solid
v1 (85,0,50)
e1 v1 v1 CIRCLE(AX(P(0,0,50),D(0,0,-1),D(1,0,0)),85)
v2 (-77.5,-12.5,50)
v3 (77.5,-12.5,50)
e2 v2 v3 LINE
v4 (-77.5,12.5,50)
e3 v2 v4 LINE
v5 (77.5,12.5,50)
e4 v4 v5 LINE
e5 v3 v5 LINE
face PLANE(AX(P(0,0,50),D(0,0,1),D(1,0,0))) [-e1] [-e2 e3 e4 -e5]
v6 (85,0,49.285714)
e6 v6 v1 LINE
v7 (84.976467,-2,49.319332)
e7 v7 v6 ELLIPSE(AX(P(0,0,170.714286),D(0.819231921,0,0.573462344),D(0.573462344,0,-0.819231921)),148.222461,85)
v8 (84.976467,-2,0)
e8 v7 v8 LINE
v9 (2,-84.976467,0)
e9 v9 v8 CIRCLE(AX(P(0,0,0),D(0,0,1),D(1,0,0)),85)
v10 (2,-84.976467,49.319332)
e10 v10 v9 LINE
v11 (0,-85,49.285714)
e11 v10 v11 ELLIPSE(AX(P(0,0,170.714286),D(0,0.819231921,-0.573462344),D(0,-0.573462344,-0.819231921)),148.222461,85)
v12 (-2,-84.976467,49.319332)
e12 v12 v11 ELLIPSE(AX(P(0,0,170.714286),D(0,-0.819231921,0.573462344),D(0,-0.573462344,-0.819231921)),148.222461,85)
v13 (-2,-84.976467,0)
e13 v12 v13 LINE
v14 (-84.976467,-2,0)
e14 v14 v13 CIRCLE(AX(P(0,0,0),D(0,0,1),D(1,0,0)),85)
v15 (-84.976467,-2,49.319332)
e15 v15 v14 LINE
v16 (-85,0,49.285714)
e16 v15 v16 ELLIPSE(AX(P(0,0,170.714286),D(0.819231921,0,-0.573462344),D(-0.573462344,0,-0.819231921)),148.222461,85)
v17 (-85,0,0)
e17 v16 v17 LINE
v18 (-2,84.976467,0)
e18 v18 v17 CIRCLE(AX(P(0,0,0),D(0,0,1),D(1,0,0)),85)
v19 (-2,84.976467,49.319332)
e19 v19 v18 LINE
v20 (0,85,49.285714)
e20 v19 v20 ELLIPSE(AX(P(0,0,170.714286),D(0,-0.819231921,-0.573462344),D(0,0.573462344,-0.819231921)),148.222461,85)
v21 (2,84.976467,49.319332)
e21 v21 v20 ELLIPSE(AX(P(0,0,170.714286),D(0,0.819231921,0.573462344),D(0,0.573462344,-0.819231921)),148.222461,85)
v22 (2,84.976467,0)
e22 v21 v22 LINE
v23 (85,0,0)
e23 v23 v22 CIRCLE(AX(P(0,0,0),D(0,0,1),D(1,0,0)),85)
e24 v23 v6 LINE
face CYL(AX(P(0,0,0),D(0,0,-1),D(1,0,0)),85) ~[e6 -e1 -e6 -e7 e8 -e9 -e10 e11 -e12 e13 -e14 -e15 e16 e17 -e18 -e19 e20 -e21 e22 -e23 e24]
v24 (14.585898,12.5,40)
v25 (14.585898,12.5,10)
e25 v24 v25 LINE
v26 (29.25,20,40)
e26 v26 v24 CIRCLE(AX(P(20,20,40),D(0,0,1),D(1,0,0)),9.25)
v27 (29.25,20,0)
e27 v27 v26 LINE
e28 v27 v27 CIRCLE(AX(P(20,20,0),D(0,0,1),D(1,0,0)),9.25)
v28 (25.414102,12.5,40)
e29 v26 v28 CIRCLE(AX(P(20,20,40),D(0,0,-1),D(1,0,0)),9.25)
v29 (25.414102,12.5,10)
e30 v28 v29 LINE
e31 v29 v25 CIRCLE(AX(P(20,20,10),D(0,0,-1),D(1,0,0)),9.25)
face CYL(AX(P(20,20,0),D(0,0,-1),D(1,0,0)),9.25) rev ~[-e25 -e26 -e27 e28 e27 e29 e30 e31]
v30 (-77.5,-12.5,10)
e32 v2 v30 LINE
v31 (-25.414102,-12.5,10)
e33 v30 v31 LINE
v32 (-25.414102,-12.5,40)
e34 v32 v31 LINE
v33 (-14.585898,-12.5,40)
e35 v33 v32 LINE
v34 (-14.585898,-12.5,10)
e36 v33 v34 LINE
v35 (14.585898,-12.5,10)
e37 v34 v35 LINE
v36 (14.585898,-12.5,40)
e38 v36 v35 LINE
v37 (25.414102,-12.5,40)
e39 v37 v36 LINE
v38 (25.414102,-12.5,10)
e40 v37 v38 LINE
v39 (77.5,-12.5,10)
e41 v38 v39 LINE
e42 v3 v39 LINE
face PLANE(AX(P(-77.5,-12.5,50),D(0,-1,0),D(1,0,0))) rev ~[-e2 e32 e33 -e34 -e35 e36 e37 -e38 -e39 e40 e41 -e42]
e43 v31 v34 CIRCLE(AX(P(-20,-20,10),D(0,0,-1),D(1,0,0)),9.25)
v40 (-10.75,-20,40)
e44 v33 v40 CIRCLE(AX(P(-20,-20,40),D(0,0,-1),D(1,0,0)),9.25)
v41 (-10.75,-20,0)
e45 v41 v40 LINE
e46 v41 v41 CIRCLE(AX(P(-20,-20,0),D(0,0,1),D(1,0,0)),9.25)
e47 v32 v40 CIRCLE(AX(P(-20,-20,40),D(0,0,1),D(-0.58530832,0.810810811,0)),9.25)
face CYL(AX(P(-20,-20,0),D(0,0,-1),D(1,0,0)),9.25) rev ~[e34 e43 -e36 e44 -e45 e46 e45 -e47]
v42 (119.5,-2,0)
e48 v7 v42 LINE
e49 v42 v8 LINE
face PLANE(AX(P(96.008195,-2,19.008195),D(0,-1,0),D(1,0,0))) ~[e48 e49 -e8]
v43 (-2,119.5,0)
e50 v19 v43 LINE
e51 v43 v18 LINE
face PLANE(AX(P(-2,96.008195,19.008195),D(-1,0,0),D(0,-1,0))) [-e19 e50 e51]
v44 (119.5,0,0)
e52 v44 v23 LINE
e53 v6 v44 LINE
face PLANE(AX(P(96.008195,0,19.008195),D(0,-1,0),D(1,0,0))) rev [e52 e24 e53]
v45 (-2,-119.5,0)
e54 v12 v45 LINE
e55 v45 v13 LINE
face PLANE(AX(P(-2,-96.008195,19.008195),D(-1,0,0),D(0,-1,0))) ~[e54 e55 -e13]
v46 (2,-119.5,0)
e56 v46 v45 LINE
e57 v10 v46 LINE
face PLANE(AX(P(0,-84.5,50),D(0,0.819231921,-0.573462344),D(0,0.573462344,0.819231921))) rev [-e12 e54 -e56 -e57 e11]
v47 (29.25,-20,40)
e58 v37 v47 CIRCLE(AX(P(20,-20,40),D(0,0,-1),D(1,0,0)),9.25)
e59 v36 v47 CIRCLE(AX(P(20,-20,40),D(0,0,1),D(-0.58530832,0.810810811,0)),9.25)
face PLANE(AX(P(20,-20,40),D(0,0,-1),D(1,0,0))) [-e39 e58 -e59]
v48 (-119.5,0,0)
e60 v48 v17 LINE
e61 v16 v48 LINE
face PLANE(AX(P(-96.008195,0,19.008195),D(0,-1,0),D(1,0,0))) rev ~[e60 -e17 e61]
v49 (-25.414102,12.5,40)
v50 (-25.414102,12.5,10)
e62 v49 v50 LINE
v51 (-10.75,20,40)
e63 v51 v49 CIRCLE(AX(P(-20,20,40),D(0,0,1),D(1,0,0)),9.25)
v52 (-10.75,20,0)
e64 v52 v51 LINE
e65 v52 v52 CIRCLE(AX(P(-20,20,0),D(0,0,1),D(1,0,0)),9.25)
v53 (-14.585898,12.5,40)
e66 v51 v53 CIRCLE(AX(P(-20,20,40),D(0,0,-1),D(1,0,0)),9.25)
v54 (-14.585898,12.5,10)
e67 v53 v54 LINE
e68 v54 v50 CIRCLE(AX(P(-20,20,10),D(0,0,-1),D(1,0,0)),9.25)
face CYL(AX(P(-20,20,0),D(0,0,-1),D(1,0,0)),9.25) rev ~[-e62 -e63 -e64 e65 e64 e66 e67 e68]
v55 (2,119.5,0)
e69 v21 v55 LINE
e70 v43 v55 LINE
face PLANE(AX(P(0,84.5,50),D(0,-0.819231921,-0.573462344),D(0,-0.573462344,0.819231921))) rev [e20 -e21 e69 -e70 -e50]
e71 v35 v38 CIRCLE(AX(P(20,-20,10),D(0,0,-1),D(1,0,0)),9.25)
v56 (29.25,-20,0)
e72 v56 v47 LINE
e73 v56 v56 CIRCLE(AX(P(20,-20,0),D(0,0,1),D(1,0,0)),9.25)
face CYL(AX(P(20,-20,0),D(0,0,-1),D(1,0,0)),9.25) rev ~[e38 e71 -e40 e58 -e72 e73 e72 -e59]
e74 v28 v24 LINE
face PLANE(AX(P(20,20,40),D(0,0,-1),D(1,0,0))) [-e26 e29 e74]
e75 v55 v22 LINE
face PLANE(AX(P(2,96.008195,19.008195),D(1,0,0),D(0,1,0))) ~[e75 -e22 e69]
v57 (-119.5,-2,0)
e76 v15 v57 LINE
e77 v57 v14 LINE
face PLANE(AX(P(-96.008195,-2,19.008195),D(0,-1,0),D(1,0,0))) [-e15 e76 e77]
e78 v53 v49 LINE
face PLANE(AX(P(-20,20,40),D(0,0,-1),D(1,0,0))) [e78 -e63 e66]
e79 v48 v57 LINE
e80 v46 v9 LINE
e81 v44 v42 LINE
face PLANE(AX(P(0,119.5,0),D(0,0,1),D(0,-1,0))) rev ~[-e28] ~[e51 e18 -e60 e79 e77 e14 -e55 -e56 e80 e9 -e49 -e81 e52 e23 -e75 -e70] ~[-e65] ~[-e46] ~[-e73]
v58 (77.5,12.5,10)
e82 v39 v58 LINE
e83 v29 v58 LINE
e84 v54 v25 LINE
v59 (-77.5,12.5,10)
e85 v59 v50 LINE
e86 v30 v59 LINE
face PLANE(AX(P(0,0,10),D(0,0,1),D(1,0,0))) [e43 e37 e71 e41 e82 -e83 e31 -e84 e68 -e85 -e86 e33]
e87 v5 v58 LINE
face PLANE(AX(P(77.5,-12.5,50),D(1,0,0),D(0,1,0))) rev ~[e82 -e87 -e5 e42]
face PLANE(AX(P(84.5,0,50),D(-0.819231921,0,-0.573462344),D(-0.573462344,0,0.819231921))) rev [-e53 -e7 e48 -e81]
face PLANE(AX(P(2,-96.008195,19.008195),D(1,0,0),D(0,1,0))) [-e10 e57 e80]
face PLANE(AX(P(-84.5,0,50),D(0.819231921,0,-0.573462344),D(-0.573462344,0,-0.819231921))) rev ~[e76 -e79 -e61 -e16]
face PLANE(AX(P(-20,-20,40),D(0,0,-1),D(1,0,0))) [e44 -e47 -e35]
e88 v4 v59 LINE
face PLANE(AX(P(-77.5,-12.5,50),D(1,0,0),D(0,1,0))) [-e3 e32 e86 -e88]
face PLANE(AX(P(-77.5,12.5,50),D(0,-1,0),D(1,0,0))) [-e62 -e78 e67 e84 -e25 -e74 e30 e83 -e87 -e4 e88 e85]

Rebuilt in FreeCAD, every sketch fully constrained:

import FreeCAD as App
import Part
import Sketcher


def add_polygon(sketch, points):
    """Adds a closed chain of lines whose ends are joined by coincident constraints."""
    first, n = sketch.GeometryCount, len(points)
    for a, b in zip(points, points[1:] + points[:1]):
        sketch.addGeometry(Part.LineSegment(App.Vector(*a, 0), App.Vector(*b, 0)), False)
    for i in range(n):
        sketch.addConstraint(Sketcher.Constraint("Coincident", first + i, 2, first + (i + 1) % n, 1))

doc = App.newDocument("Part")
params = doc.addObject("Spreadsheet::Sheet", "Params")
for row, (alias, value) in enumerate([
    ("sketch1_diameter", "170 mm"),
    ("pad1_length", "50 mm"),
    ("sketch2_diameter", "18.5 mm"),
    ("pocket1_length", "40 mm"),
    ("sketch3_width", "155 mm"),
    ("sketch3_height", "25 mm"),
    ("pocket2_length", "40 mm"),
    ("sketch4_width", "35 mm"),
    ("sketch4_height", "50 mm"),
    ("pad2_length", "2 mm"),
    ("sketch5_width", "35 mm"),
    ("sketch5_height", "50 mm"),
    ("pad3_length", "2 mm"),
], start=1):
    params.set(f"A{row}", alias)
    params.set(f"B{row}", "=" + value)
    params.setAlias(f"B{row}", alias)

body = doc.addObject("PartDesign::Body", "Body")

sketch1 = doc.addObject("Sketcher::SketchObject", "Sketch")
body.addObject(sketch1)
sketch1.AttachmentSupport = (doc.XY_Plane, [""])
sketch1.MapMode = "FlatFace"
sketch1.addGeometry(Part.Circle(App.Vector(0, 0, 0), App.Vector(0, 0, 1), 85), False)
sketch1.addConstraint([
    Sketcher.Constraint("Coincident", 0, 3, -1, 1),
    Sketcher.Constraint("Diameter", 0, 170.0),
])
sketch1.setExpression("Constraints[1]", "Params.sketch1_diameter")
pad1 = doc.addObject("PartDesign::Pad", "Pad")
body.addObject(pad1)
pad1.Profile = sketch1
pad1.setExpression("Length", "Params.pad1_length")

sketch2 = doc.addObject("Sketcher::SketchObject", "Sketch001")
body.addObject(sketch2)
sketch2.AttachmentSupport = (doc.XY_Plane, [""])
sketch2.MapMode = "FlatFace"
sketch2.addGeometry([
    Part.Circle(App.Vector(20, -20, 0), App.Vector(0, 0, 1), 9.25),
    Part.Circle(App.Vector(-20, -20, 0), App.Vector(0, 0, 1), 9.25),
    Part.Circle(App.Vector(-20, 20, 0), App.Vector(0, 0, 1), 9.25),
    Part.Circle(App.Vector(20, 20, 0), App.Vector(0, 0, 1), 9.25),
], False)
sketch2.addConstraint([
    Sketcher.Constraint("Equal", 0, 1),
    Sketcher.Constraint("Equal", 1, 2),
    Sketcher.Constraint("Equal", 2, 3),
    Sketcher.Constraint("Symmetric", 0, 3, 2, 3, -1, 1),
    Sketcher.Constraint("Symmetric", 1, 3, 3, 3, -1, 1),
    Sketcher.Constraint("Symmetric", 0, 3, 1, 3, -2),
    Sketcher.Constraint("Diameter", 0, 18.5),
    Sketcher.Constraint("DistanceX", -1, 1, 0, 3, 20.0),
    Sketcher.Constraint("DistanceY", 0, 3, -1, 1, 20.0),
])
sketch2.setExpression("Constraints[6]", "Params.sketch2_diameter")
pocket1 = doc.addObject("PartDesign::Pocket", "Pocket")
body.addObject(pocket1)
pocket1.Profile = sketch2
pocket1.setExpression("Length", "Params.pocket1_length")
pocket1.Reversed = True

sketch3 = doc.addObject("Sketcher::SketchObject", "Sketch002")
body.addObject(sketch3)
sketch3.AttachmentSupport = (doc.XY_Plane, [""])
sketch3.MapMode = "FlatFace"
sketch3.AttachmentOffset = App.Placement(App.Vector(0, 0, 50), App.Rotation())
add_polygon(sketch3, [(-77.5, 12.5), (-77.5, -12.5), (77.5, -12.5), (77.5, 12.5)])
sketch3.addConstraint([
    Sketcher.Constraint("Vertical", 0),
    Sketcher.Constraint("Horizontal", 1),
    Sketcher.Constraint("Vertical", 2),
    Sketcher.Constraint("Horizontal", 3),
    Sketcher.Constraint("Symmetric", 0, 2, 2, 2, -1, 1),
    Sketcher.Constraint("DistanceX", 1, 1, 1, 2, 155.0),
    Sketcher.Constraint("DistanceY", 0, 2, 0, 1, 25.0),
])
sketch3.setExpression("Constraints[9]", "Params.sketch3_width")
sketch3.setExpression("Constraints[10]", "Params.sketch3_height")
pocket2 = doc.addObject("PartDesign::Pocket", "Pocket001")
body.addObject(pocket2)
pocket2.Profile = sketch3
pocket2.setExpression("Length", "Params.pocket2_length")

sketch4 = doc.addObject("Sketcher::SketchObject", "Sketch003")
body.addObject(sketch4)
sketch4.AttachmentSupport = (doc.YZ_Plane, [""])
sketch4.MapMode = "FlatFace"
add_polygon(sketch4, [(-119.5, 0), (-84.5, 0), (-84.5, 50)])
sketch4.addConstraint([
    Sketcher.Constraint("Horizontal", 0),
    Sketcher.Constraint("Vertical", 1),
    Sketcher.Constraint("PointOnObject", 0, 2, -1),
    Sketcher.Constraint("DistanceX", 0, 1, 0, 2, 35.0),
    Sketcher.Constraint("DistanceY", 1, 1, 1, 2, 50.0),
    Sketcher.Constraint("DistanceX", 0, 2, -1, 1, 84.5),
])
sketch4.setExpression("Constraints[6]", "Params.sketch4_width")
sketch4.setExpression("Constraints[7]", "Params.sketch4_height")
pad2 = doc.addObject("PartDesign::Pad", "Pad001")
body.addObject(pad2)
pad2.Profile = sketch4
pad2.setExpression("Length", "Params.pad2_length")
body2 = doc.addObject("PartDesign::Body", "Body001")
doc.recompute()

body2.BaseFeature = body
doc.recompute()

mirroring = doc.addObject("Part::Mirroring", "Mirroring")
mirroring.Source = body
mirroring.Base = App.Vector(0, 0, 0)
mirroring.Normal = App.Vector(0, -1, 0)
body3 = doc.addObject("PartDesign::Body", "Body002")
body3.BaseFeature = mirroring
boolean = doc.addObject("PartDesign::Boolean", "Boolean")
body2.addObject(boolean)
boolean.Type = "Fuse"
boolean.addObjects([body3])
doc.recompute()

sketch5 = doc.addObject("Sketcher::SketchObject", "Sketch004")
body2.addObject(sketch5)
sketch5.AttachmentSupport = (doc.getObject("XZ_Plane001"), [""])
sketch5.MapMode = "FlatFace"
add_polygon(sketch5, [(-84.5, 0), (-84.5, 50), (-119.5, 0)])
sketch5.addConstraint([
    Sketcher.Constraint("Vertical", 0),
    Sketcher.Constraint("Horizontal", 2),
    Sketcher.Constraint("PointOnObject", 1, 2, -1),
    Sketcher.Constraint("DistanceX", 2, 1, 2, 2, 35.0),
    Sketcher.Constraint("DistanceY", 0, 1, 0, 2, 50.0),
    Sketcher.Constraint("DistanceX", 0, 2, -1, 1, 84.5),
])
sketch5.setExpression("Constraints[6]", "Params.sketch5_width")
sketch5.setExpression("Constraints[7]", "Params.sketch5_height")
pad3 = doc.addObject("PartDesign::Pad", "Pad002")
body2.addObject(pad3)
pad3.Profile = sketch5
pad3.setExpression("Length", "Params.pad3_length")
body4 = doc.addObject("PartDesign::Body", "Body003")
doc.recompute()

body4.BaseFeature = body2
doc.recompute()

mirroring2 = doc.addObject("Part::Mirroring", "Mirroring001")
mirroring2.Source = body2
mirroring2.Base = App.Vector(0, 0, 0)
mirroring2.Normal = App.Vector(1, 0, 0)
body5 = doc.addObject("PartDesign::Body", "Body004")
body5.BaseFeature = mirroring2
boolean2 = doc.addObject("PartDesign::Boolean", "Boolean001")
body4.addObject(boolean2)
boolean2.Type = "Fuse"
boolean2.addObjects([body5])
doc.recompute()
mirroring.Visibility = False
mirroring2.Visibility = False

doc.recompute()
